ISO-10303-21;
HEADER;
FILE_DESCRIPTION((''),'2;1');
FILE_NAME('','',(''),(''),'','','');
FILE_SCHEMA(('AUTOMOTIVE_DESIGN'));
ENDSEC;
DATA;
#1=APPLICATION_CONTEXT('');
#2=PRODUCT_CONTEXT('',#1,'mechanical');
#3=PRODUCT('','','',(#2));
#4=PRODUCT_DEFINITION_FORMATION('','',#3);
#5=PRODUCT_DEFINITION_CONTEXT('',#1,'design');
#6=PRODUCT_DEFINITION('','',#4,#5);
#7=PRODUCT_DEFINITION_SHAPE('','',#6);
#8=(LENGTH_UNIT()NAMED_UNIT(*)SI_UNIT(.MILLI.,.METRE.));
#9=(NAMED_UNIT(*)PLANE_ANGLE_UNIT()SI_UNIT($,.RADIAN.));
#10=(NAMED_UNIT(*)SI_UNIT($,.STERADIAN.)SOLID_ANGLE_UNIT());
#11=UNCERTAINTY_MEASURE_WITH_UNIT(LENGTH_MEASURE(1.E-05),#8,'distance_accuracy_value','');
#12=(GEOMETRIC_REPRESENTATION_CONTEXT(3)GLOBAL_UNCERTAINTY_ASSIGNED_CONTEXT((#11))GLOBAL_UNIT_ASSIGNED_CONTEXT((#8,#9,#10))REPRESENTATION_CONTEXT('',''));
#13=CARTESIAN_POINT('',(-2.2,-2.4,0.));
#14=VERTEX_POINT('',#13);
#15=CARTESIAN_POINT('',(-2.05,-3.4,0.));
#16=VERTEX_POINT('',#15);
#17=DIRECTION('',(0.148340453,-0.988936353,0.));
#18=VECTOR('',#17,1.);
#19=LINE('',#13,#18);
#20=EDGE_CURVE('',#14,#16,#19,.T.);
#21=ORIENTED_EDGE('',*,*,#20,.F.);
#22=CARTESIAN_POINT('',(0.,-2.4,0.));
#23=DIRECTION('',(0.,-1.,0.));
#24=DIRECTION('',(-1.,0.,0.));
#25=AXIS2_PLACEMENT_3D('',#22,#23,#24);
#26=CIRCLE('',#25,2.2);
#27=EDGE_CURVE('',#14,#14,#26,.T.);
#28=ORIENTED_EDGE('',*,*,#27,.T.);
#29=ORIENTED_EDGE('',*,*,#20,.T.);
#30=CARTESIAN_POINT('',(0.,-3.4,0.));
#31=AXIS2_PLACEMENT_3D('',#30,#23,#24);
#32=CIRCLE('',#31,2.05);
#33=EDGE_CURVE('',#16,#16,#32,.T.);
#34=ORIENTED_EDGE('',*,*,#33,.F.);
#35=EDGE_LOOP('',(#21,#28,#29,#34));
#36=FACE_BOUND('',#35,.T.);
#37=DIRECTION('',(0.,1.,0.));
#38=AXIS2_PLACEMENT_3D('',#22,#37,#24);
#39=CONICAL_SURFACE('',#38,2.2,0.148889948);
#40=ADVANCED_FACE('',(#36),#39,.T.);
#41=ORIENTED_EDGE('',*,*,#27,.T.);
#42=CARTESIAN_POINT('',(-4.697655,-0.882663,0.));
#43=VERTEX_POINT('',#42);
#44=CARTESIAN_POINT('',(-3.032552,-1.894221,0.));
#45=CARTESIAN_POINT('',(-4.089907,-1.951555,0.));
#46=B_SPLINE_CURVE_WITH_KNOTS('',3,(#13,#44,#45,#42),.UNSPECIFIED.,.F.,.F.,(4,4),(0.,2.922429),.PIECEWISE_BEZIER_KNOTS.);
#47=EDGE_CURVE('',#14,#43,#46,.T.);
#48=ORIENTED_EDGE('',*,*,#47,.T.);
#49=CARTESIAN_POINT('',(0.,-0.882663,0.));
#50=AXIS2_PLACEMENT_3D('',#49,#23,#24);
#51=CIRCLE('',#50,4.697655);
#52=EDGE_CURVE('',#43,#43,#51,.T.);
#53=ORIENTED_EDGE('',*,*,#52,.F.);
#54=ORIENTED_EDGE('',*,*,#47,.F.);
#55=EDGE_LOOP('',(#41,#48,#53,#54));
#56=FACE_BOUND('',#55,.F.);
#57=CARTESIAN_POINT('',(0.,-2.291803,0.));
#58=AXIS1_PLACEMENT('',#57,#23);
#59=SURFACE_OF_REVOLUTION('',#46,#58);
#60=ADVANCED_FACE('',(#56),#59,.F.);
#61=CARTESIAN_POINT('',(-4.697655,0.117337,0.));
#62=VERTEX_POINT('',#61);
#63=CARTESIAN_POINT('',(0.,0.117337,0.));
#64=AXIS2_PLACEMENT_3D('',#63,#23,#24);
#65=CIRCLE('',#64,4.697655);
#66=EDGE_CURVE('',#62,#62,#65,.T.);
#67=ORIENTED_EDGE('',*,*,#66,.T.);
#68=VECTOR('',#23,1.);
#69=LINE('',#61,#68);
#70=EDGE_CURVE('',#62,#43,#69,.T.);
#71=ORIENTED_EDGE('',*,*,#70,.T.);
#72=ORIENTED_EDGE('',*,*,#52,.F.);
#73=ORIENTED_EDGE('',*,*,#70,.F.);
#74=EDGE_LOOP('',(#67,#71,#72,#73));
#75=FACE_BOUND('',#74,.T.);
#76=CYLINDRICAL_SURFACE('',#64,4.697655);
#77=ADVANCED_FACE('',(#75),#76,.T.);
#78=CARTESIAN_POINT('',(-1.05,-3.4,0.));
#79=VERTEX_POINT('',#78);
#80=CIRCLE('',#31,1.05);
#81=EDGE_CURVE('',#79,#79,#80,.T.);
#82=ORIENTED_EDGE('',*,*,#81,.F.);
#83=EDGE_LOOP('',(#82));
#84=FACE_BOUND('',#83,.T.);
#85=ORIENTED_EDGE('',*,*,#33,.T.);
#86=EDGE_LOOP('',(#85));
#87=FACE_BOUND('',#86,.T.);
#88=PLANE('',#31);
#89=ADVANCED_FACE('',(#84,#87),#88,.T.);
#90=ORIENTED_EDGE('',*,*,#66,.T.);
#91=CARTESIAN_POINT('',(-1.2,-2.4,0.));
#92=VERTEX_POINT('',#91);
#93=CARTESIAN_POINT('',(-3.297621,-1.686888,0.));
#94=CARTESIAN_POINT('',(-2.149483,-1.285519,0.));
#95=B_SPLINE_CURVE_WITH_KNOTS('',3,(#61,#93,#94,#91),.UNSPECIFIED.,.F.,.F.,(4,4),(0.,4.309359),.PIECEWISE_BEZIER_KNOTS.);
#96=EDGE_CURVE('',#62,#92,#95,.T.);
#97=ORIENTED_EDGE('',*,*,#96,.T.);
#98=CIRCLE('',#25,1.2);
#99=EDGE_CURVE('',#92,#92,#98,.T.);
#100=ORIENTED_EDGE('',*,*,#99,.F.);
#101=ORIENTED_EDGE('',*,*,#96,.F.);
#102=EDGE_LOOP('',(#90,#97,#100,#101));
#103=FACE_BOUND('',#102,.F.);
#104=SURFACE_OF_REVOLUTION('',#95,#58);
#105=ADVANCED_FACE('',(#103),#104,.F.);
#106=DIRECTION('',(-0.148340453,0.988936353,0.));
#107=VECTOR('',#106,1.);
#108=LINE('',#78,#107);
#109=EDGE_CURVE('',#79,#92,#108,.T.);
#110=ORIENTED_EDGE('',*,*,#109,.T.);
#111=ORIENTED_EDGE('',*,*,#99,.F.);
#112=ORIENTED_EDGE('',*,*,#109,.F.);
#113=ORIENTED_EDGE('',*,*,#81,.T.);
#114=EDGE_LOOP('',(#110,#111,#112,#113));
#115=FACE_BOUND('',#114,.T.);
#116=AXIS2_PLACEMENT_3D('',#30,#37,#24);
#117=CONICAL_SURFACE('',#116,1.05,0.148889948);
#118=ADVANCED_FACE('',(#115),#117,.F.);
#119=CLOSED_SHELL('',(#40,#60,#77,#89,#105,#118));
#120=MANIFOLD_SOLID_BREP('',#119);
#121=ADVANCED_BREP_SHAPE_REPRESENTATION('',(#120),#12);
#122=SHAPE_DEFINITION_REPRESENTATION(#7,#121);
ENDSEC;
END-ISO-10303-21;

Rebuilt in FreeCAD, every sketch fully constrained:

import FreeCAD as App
import Part
import Sketcher
from FreeCAD import Vector

doc = App.newDocument("Part")
body = doc.addObject("PartDesign::Body", "Body")

# Sketch on XY plane
sketch1 = body.newObject("Sketcher::SketchObject", "Sketch")
sketch1.AttachmentSupport = (doc.getObject("XY_Plane"), [""])
sketch1.MapMode = "FlatFace"
sketch1.addGeometry([
    Part.LineSegment(Vector(-2.2, -2.4, 0), Vector(-2.05, -3.4, 0)),  # 0
    Part.LineSegment(Vector(-2.05, -3.4, 0), Vector(-1.05, -3.4, 0)),  # 1
    Part.LineSegment(Vector(-1.05, -3.4, 0), Vector(-1.2, -2.4, 0)),  # 2
    Part.BSplineCurve([Vector(-4.697655, 0.117337, 0), Vector(-3.297621, -1.686888, 0), Vector(-2.149483, -1.285519, 0), Vector(-1.2, -2.4, 0)], [4, 4], [0, 4.309359], False, 3, [1, 1, 1, 1], False),  # 3
    Part.LineSegment(Vector(-4.697655, 0.117337, 0), Vector(-4.697655, -0.882663, 0)),  # 4
    Part.BSplineCurve([Vector(-2.2, -2.4, 0), Vector(-3.032552, -1.894221, 0), Vector(-4.089907, -1.951555, 0), Vector(-4.697655, -0.882663, 0)], [4, 4], [0, 2.922429], False, 3, [1, 1, 1, 1], False),  # 5
], False)
sketch1.addConstraint([
    Sketcher.Constraint("Block", 3),
    Sketcher.Constraint("Block", 5),
    Sketcher.Constraint("Coincident", 0, 2, 1, 1),
    Sketcher.Constraint("Coincident", 1, 2, 2, 1),
    Sketcher.Constraint("Coincident", 2, 2, 3, 2),
    Sketcher.Constraint("Coincident", 3, 1, 4, 1),
    Sketcher.Constraint("Coincident", 4, 2, 5, 2),
    Sketcher.Constraint("Coincident", 5, 1, 0, 1),
    Sketcher.Constraint("Horizontal", 1),
    Sketcher.Constraint("DistanceX", 1, 1, 1, 2, 1.0),
    Sketcher.Constraint("DistanceY", 1, 2, 2, 2, 1.0),
    Sketcher.Constraint("DistanceX", 0, 2, -1, 1, 2.05),
])
revolution = body.newObject("PartDesign::Revolution", "Revolution")
revolution.Profile = sketch1
revolution.ReferenceAxis = (sketch1, ["V_Axis"])
revolution.Angle = 360

doc.recompute()
